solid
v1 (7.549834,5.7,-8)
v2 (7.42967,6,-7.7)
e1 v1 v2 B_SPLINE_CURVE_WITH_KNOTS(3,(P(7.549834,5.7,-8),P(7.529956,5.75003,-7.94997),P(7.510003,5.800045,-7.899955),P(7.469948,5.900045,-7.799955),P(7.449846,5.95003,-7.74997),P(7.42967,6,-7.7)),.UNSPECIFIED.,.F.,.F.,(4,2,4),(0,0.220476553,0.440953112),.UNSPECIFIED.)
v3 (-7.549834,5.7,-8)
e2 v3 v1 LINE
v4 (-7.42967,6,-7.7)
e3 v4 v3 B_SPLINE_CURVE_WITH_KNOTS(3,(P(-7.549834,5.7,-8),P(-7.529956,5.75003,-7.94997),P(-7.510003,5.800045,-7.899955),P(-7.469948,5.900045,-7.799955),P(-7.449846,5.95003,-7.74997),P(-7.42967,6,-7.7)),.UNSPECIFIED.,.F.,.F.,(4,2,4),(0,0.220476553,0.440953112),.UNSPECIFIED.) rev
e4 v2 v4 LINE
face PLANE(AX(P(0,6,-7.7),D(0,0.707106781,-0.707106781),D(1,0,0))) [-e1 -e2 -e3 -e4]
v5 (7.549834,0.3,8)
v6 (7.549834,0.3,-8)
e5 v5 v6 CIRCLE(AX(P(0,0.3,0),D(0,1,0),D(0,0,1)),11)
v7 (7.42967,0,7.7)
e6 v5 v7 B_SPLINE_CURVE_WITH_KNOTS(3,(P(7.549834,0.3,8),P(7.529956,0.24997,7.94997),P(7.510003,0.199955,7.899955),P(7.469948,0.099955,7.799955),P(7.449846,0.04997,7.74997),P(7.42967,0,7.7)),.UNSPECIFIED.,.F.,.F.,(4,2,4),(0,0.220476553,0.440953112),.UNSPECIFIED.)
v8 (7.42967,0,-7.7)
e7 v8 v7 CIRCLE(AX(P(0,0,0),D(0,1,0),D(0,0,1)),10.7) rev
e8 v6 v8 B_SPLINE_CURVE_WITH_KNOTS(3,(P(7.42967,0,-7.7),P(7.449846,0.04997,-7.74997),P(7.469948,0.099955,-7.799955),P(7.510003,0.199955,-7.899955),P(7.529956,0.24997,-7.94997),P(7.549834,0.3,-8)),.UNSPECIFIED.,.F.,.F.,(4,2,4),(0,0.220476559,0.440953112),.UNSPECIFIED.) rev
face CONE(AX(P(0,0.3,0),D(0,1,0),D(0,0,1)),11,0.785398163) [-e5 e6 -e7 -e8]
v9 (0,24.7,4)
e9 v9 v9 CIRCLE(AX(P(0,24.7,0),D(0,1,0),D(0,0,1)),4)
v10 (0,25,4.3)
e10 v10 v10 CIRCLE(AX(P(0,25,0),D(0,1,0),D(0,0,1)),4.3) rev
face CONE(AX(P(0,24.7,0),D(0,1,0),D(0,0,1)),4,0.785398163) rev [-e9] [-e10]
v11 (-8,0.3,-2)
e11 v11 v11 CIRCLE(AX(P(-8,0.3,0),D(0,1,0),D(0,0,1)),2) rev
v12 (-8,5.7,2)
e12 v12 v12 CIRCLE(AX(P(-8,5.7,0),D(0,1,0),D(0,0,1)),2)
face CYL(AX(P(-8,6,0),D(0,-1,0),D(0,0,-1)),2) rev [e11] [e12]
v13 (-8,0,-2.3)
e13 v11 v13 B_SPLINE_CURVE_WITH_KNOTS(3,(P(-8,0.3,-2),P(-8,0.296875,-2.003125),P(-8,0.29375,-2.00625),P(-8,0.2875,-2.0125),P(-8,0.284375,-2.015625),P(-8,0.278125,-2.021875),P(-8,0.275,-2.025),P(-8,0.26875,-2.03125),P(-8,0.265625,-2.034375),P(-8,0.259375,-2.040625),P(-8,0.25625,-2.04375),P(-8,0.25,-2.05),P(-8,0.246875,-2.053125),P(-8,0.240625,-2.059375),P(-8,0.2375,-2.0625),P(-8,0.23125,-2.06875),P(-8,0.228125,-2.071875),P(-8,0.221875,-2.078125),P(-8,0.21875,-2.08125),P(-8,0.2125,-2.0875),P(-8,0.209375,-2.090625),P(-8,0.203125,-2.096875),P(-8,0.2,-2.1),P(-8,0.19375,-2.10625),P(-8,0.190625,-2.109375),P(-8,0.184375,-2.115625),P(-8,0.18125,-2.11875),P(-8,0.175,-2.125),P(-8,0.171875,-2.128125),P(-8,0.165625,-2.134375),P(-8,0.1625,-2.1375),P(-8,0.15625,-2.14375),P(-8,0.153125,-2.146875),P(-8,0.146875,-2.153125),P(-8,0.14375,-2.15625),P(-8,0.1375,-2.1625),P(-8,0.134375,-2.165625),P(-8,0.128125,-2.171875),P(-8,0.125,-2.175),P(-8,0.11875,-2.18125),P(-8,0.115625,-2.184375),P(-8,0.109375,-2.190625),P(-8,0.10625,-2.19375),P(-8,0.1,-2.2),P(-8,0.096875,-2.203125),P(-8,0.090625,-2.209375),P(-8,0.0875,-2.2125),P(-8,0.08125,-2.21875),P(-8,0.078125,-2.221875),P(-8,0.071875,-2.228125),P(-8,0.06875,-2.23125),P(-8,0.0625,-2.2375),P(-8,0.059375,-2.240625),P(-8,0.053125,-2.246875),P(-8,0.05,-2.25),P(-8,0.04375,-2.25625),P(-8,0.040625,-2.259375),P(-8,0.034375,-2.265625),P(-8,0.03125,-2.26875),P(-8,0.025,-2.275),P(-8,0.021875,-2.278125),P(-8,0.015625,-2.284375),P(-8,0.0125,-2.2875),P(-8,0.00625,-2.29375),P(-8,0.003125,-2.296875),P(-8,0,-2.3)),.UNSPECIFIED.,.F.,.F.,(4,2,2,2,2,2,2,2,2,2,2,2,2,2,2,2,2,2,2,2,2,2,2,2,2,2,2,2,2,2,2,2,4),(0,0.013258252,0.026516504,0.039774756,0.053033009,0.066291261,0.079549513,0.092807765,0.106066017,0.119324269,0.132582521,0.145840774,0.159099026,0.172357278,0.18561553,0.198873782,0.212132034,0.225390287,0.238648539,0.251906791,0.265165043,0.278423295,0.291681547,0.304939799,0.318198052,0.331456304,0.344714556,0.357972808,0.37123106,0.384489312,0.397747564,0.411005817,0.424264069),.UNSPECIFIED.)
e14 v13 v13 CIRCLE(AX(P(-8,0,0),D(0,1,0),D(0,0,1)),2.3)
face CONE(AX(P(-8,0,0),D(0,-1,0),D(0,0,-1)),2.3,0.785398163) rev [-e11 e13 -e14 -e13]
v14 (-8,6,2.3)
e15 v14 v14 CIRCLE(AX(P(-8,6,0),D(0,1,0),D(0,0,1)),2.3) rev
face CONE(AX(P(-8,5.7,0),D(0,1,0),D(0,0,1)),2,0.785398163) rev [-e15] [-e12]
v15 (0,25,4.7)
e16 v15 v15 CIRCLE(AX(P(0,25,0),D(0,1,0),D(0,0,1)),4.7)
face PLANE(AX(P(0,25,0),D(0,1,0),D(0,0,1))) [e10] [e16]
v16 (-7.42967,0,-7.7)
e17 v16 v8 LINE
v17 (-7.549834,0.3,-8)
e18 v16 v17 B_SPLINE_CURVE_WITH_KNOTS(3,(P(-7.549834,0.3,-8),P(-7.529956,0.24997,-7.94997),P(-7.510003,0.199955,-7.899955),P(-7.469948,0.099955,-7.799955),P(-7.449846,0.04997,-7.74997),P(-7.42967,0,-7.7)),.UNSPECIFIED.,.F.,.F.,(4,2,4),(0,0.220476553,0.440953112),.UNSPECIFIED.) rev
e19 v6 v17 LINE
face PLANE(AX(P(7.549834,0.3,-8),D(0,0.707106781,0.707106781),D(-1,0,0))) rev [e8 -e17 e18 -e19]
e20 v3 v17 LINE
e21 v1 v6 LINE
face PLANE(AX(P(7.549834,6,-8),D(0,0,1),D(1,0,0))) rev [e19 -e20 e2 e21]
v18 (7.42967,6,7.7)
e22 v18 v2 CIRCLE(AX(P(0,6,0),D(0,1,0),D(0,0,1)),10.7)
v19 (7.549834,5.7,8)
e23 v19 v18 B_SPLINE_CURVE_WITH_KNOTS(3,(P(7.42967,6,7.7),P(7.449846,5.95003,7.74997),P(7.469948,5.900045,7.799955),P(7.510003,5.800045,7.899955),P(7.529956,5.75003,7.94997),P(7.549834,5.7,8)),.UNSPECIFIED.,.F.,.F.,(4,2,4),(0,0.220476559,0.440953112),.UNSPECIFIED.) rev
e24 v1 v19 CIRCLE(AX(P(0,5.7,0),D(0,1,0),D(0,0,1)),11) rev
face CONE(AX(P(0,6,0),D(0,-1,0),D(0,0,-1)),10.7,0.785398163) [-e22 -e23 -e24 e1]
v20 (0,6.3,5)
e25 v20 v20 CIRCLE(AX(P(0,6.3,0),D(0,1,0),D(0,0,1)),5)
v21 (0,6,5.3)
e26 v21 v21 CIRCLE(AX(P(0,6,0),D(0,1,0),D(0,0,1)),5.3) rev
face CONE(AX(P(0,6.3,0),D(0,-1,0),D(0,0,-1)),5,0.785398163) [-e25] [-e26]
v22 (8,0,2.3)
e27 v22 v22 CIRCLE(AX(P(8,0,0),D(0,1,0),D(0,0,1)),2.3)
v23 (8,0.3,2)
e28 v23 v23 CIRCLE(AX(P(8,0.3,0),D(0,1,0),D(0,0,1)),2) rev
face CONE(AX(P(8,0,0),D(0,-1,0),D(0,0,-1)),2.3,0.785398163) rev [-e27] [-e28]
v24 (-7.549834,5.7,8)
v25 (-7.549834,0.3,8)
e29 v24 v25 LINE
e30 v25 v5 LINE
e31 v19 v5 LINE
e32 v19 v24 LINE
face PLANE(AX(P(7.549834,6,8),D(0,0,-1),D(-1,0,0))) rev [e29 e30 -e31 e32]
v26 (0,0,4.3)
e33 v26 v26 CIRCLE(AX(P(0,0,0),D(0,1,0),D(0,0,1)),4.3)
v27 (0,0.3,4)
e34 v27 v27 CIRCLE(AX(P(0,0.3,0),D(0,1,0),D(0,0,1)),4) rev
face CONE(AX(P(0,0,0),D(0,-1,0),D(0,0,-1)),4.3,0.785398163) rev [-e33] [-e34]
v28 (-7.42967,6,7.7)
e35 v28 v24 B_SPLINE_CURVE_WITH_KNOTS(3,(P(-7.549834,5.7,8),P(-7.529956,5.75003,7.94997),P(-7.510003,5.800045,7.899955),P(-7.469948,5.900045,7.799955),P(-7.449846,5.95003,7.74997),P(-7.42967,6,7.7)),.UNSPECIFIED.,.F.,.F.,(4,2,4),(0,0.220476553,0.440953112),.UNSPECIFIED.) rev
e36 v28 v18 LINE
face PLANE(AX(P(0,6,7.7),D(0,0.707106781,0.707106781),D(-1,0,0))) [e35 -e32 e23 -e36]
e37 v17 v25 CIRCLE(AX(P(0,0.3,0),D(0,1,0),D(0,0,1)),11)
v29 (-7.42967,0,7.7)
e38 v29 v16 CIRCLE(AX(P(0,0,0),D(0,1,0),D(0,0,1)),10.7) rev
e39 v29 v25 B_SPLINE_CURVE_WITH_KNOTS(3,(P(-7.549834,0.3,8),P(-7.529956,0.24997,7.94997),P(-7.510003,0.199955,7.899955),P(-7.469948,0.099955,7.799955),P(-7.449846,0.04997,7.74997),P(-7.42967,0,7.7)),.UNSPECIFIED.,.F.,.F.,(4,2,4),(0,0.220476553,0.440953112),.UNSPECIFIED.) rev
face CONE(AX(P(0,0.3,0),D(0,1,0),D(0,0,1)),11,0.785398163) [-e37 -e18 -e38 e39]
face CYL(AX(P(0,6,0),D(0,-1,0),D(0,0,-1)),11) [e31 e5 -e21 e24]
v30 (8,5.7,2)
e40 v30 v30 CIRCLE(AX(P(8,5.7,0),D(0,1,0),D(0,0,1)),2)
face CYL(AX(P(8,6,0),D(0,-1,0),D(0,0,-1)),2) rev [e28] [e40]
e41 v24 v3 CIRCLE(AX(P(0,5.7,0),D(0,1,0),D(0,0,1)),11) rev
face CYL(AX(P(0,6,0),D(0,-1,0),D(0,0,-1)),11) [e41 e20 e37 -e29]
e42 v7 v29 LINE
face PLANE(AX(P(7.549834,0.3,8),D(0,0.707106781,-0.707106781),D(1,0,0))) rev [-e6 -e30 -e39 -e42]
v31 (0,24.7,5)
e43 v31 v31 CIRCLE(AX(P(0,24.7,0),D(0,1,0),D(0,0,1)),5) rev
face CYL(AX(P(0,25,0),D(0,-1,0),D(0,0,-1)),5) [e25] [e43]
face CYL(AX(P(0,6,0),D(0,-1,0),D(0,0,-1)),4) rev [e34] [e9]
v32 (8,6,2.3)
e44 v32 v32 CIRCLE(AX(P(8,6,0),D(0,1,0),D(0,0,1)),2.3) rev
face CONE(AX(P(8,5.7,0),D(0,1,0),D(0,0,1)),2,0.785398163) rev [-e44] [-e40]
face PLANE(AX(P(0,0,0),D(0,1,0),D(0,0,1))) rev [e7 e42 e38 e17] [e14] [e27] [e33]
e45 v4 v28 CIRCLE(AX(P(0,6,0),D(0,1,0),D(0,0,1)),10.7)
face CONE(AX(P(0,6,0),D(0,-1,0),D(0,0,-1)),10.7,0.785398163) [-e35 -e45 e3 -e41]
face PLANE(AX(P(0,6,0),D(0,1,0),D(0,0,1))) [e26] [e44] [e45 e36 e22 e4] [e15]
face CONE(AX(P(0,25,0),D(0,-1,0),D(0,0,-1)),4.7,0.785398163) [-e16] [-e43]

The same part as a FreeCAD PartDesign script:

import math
import FreeCAD as App
import Part
import Sketcher
from FreeCAD import Vector


def edges_at(feature, points):
    """Names of the edges that pass closest to the given points."""
    edges = feature.Shape.Edges
    near = lambda p: min(range(len(edges)), key=lambda i: edges[i].distToShape(Part.Vertex(*p))[0])
    return sorted({f"Edge{near(p) + 1}" for p in points})

doc = App.newDocument("Part")
body = doc.addObject("PartDesign::Body", "Body")

sketch1 = doc.addObject("Sketcher::SketchObject", "Sketch")
body.addObject(sketch1)
sketch1.AttachmentSupport = (doc.XZ_Plane, [""])
sketch1.MapMode = "FlatFace"
sketch1.addGeometry([
    Part.LineSegment(Vector(7.5, -8, 0), Vector(-7.5, -8, 0)),
    Part.ArcOfCircle(Part.Circle(Vector(0, 0, 0), Vector(0, 0, 1), 11), math.radians(133), math.radians(227)),
    Part.LineSegment(Vector(-7.5, 8, 0), Vector(7.5, 8, 0)),
    Part.ArcOfCircle(Part.Circle(Vector(0, 0, 0), Vector(0, 0, 1), 11), math.radians(-47), math.radians(47)),
    Part.Circle(Vector(-8, 0, 0), Vector(0, 0, 1), 2),
    Part.Circle(Vector(0, 0, 0), Vector(0, 0, 1), 4),
    Part.Circle(Vector(8, 0, 0), Vector(0, 0, 1), 2),
], False)
sketch1.addConstraint([
    Sketcher.Constraint("Coincident", 0, 2, 1, 2),
    Sketcher.Constraint("Coincident", 1, 1, 2, 1),
    Sketcher.Constraint("Coincident", 2, 2, 3, 2),
    Sketcher.Constraint("Coincident", 3, 1, 0, 1),
    Sketcher.Constraint("Horizontal", 0),
    Sketcher.Constraint("Horizontal", 2),
    Sketcher.Constraint("Coincident", 1, 3, -1, 1),
    Sketcher.Constraint("Coincident", 3, 3, -1, 1),
    Sketcher.Constraint("Coincident", 5, 3, -1, 1),
    Sketcher.Constraint("Equal", 1, 3),
    Sketcher.Constraint("Equal", 4, 6),
    Sketcher.Constraint("Symmetric", 4, 3, 6, 3, -1, 1),
    Sketcher.Constraint("PointOnObject", 4, 3, -1),
    Sketcher.Constraint("Vertical", 0, 2, 1, 1),
    Sketcher.Constraint("Diameter", 4, 4.0),
    Sketcher.Constraint("Diameter", 5, 8.0),
    Sketcher.Constraint("Radius", 1, 11.0),
    Sketcher.Constraint("DistanceX", 4, 3, -1, 1, 8.0),
    Sketcher.Constraint("DistanceY", 0, 2, -1, 1, 8.0),
])
pad1 = doc.addObject("PartDesign::Pad", "Pad")
body.addObject(pad1)
pad1.Profile = sketch1
pad1.Length = 6
pad1.Reversed = True

sketch2 = doc.addObject("Sketcher::SketchObject", "Sketch001")
body.addObject(sketch2)
sketch2.AttachmentSupport = (doc.XZ_Plane, [""])
sketch2.MapMode = "FlatFace"
sketch2.AttachmentOffset = App.Placement(Vector(0, 0, -6), App.Rotation())
sketch2.addGeometry([
    Part.Circle(Vector(0, 0, 0), Vector(0, 0, 1), 5),
    Part.Circle(Vector(0, 0, 0), Vector(0, 0, 1), 4),
], False)
sketch2.addConstraint([
    Sketcher.Constraint("Coincident", 0, 3, -1, 1),
    Sketcher.Constraint("Coincident", 1, 3, -1, 1),
    Sketcher.Constraint("Diameter", 0, 10.0),
    Sketcher.Constraint("Diameter", 1, 8.0),
])
pad2 = doc.addObject("PartDesign::Pad", "Pad001")
body.addObject(pad2)
pad2.Profile = sketch2
pad2.Length = 19
pad2.Reversed = True
doc.recompute()

chamfer = doc.addObject("PartDesign::Chamfer", "Chamfer")
body.addObject(chamfer)
chamfer.Base = (pad2, edges_at(pad2, [
    (-11, 6, 0),
    (0, 0, -4),
    (0, 6, 8),
    (-8, 0, -2),
    (-8, 6, -2),
    (8, 0, -2),
    (8, 6, -2),
    (0, 25, -5),
    (0, 6, -5),
    (0, 25, -4),
    (11, 6, 0),
    (0, 0, 8),
    (-11, 0, 0),
    (0, 0, -8),
    (11, 0, 0),
    (0, 6, -8),
]))
chamfer.Size = 0.3

doc.recompute()
